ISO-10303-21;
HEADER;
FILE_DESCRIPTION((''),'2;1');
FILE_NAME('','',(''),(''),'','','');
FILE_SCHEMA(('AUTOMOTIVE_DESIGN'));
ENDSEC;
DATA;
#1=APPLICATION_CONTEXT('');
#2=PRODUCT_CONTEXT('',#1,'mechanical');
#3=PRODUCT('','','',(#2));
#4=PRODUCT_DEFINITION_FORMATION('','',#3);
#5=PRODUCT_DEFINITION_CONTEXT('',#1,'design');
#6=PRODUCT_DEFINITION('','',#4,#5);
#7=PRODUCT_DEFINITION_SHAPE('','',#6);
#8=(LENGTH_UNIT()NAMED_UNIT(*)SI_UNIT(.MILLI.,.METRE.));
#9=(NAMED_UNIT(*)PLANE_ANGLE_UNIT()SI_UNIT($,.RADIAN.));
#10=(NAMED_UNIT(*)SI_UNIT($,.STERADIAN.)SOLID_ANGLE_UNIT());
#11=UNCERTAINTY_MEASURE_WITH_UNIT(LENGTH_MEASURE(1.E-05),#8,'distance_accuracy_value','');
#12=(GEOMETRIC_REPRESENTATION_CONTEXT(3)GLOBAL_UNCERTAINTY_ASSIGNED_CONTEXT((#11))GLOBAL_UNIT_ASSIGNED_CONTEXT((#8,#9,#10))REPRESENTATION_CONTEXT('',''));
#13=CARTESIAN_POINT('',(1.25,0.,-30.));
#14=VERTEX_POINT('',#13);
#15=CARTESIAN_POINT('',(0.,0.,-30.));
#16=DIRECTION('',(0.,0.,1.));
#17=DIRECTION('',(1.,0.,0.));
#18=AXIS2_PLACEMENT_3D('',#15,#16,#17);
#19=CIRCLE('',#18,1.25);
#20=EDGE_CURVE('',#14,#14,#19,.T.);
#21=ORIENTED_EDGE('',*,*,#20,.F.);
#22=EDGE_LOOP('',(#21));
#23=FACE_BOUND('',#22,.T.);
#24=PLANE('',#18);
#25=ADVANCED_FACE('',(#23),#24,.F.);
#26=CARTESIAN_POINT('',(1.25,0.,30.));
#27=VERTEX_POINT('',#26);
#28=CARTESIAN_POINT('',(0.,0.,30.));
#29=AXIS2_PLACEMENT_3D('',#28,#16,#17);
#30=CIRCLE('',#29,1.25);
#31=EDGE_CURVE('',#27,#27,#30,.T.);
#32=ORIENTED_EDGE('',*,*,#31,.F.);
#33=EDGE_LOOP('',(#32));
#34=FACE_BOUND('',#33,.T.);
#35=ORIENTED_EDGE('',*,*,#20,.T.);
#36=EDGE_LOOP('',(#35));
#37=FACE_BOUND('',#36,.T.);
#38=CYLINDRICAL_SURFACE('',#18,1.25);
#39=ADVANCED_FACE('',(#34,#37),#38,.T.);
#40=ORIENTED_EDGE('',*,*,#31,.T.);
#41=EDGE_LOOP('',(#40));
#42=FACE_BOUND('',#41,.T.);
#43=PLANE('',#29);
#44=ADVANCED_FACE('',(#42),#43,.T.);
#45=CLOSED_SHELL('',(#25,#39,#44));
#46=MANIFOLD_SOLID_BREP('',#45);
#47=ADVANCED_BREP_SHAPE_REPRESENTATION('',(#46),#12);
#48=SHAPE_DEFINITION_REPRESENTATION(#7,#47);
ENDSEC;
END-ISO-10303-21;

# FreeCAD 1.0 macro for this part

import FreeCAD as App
import Part
import Sketcher

V = App.Vector

doc = App.newDocument("Part")
body = doc.addObject("PartDesign::Body", "Body")

# Sketch on XY plane
sketch1 = body.newObject("Sketcher::SketchObject", "Sketch")
sketch1.AttachmentSupport = (doc.getObject("XY_Plane"), [""])
sketch1.MapMode = "FlatFace"
sketch1.AttachmentOffset = App.Placement(V(0, 0, -30), App.Rotation())
sketch1.addGeometry(Part.Circle(V(0, 0, 0), V(0, 0, 1), 1.2), False)
sketch1.addConstraint(Sketcher.Constraint("Coincident", 0, 3, -1, 1))
sketch1.addConstraint(Sketcher.Constraint("Diameter", 0, 2.5))

# Sketch on XZ plane
sketch2 = body.newObject("Sketcher::SketchObject", "Sketch001")
sketch2.AttachmentSupport = (doc.getObject("XZ_Plane"), [""])
sketch2.MapMode = "FlatFace"
sketch2.addGeometry(Part.LineSegment(V(0, -30, 0), V(0, 30, 0)), False)
sketch2.addConstraint(Sketcher.Constraint("Vertical", 0))
sketch2.addConstraint(Sketcher.Constraint("Symmetric", 0, 1, 0, 2, -1, 1))
sketch2.addConstraint(Sketcher.Constraint("DistanceY", 0, 1, 0, 2, 60.0))
doc.recompute()

additivepipe = body.newObject("PartDesign::AdditivePipe", "AdditivePipe")
additivepipe.Profile = sketch1
additivepipe.Spine = (sketch2, ["Edge1"])

doc.recompute()
